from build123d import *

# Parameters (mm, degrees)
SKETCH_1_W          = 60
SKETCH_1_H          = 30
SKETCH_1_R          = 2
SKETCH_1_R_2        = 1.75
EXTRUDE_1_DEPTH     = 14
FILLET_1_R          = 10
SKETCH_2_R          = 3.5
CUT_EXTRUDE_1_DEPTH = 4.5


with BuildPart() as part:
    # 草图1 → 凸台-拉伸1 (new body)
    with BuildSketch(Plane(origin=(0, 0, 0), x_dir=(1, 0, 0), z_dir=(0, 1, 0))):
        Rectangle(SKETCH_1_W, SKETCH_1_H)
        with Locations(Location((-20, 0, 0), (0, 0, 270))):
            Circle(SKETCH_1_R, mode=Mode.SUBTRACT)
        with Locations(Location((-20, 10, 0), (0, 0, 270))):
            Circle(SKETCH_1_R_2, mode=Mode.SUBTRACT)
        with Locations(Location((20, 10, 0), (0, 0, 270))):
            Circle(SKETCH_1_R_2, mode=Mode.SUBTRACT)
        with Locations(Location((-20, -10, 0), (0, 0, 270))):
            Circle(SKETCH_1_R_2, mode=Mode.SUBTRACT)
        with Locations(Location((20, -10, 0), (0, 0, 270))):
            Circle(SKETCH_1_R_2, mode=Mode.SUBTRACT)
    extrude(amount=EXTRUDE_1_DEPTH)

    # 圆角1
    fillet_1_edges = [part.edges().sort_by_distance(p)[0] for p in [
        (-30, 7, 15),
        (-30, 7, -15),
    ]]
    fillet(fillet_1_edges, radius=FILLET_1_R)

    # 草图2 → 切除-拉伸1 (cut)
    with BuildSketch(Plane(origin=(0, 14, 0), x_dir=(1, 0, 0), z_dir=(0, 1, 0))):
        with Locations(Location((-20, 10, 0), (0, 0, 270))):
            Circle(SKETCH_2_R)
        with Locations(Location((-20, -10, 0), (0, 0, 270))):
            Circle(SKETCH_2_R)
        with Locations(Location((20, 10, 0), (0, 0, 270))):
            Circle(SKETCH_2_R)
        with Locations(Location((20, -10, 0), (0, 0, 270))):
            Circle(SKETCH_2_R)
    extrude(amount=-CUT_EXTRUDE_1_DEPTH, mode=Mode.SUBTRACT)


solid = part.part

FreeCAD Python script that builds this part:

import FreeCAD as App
import Part
import Sketcher
from FreeCAD import Vector


def edges_at(feature, points):
    """Names of the edges that pass closest to the given points."""
    edges = feature.Shape.Edges
    near = lambda p: min(range(len(edges)), key=lambda i: edges[i].distToShape(Part.Vertex(*p))[0])
    return sorted({f"Edge{near(p) + 1}" for p in points})

doc = App.newDocument("Part")
body = doc.addObject("PartDesign::Body", "Body")

# Sketch on XZ plane
sketch1 = doc.addObject("Sketcher::SketchObject", "Sketch")
body.addObject(sketch1)
sketch1.AttachmentSupport = (doc.XZ_Plane, [""])
sketch1.MapMode = "FlatFace"
sketch1.addGeometry([
    Part.LineSegment(Vector(-30, -15, 0), Vector(-30, 15, 0)),  # 0
    Part.LineSegment(Vector(-30, 15, 0), Vector(30, 15, 0)),  # 1
    Part.LineSegment(Vector(30, 15, 0), Vector(30, -15, 0)),  # 2
    Part.LineSegment(Vector(30, -15, 0), Vector(-30, -15, 0)),  # 3
    Part.Circle(Vector(-20, 10, 0), Vector(0, 0, 1), 1.8),  # 4
    Part.Circle(Vector(20, 10, 0), Vector(0, 0, 1), 1.8),  # 5
    Part.Circle(Vector(-20, 0, 0), Vector(0, 0, 1), 2),  # 6
    Part.Circle(Vector(-20, -10, 0), Vector(0, 0, 1), 1.8),  # 7
    Part.Circle(Vector(20, -10, 0), Vector(0, 0, 1), 1.8),  # 8
], False)
sketch1.addConstraint([
    Sketcher.Constraint("Coincident", 0, 2, 1, 1),
    Sketcher.Constraint("Coincident", 1, 2, 2, 1),
    Sketcher.Constraint("Coincident", 2, 2, 3, 1),
    Sketcher.Constraint("Coincident", 3, 2, 0, 1),
    Sketcher.Constraint("Vertical", 0),
    Sketcher.Constraint("Horizontal", 1),
    Sketcher.Constraint("Vertical", 2),
    Sketcher.Constraint("Horizontal", 3),
    Sketcher.Constraint("Equal", 4, 5),
    Sketcher.Constraint("Equal", 5, 7),
    Sketcher.Constraint("Equal", 7, 8),
    Sketcher.Constraint("Symmetric", 5, 3, 7, 3, -1, 1),
    Sketcher.Constraint("Symmetric", 4, 3, 8, 3, -1, 1),
    Sketcher.Constraint("Symmetric", 0, 2, 2, 2, -1, 1),
    Sketcher.Constraint("Symmetric", 4, 3, 5, 3, -2),
    Sketcher.Constraint("PointOnObject", 6, 3, -1),
    Sketcher.Constraint("Vertical", 4, 3, 6, 3),
    Sketcher.Constraint("Diameter", 6, 4.0),
    Sketcher.Constraint("Diameter", 4, 3.5),
    Sketcher.Constraint("DistanceX", 1, 1, 1, 2, 60.0),
    Sketcher.Constraint("DistanceY", 0, 1, 0, 2, 30.0),
    Sketcher.Constraint("DistanceX", 4, 3, -1, 1, 20.0),
    Sketcher.Constraint("DistanceY", -1, 1, 4, 3, 10.0),
])
pad1 = doc.addObject("PartDesign::Pad", "Pad")
body.addObject(pad1)
pad1.Profile = sketch1
pad1.Length = 14
pad1.Reversed = True
doc.recompute()

fillet = doc.addObject("PartDesign::Fillet", "Fillet")
body.addObject(fillet)
fillet.Base = (pad1, edges_at(pad1, [(-30, 7, 15), (-30, 7, -15)]))
fillet.Radius = 10

# Sketch on XZ plane
sketch2 = doc.addObject("Sketcher::SketchObject", "Sketch001")
body.addObject(sketch2)
sketch2.AttachmentSupport = (doc.XZ_Plane, [""])
sketch2.MapMode = "FlatFace"
sketch2.AttachmentOffset = App.Placement(Vector(0, 0, -14), App.Rotation())
sketch2.addGeometry([
    Part.Circle(Vector(-20, -10, 0), Vector(0, 0, 1), 3.5),
    Part.Circle(Vector(-20, 10, 0), Vector(0, 0, 1), 3.5),
    Part.Circle(Vector(20, -10, 0), Vector(0, 0, 1), 3.5),
    Part.Circle(Vector(20, 10, 0), Vector(0, 0, 1), 3.5),
], False)
sketch2.addConstraint([
    Sketcher.Constraint("Equal", 0, 1),
    Sketcher.Constraint("Equal", 1, 2),
    Sketcher.Constraint("Equal", 2, 3),
    Sketcher.Constraint("Symmetric", 1, 3, 2, 3, -1, 1),
    Sketcher.Constraint("Symmetric", 0, 3, 3, 3, -1, 1),
    Sketcher.Constraint("Symmetric", 0, 3, 2, 3, -2),
    Sketcher.Constraint("Diameter", 0, 7.0),
    Sketcher.Constraint("DistanceX", 0, 3, -1, 1, 20.0),
    Sketcher.Constraint("DistanceY", 0, 3, -1, 1, 10.0),
])
pocket1 = doc.addObject("PartDesign::Pocket", "Pocket")
body.addObject(pocket1)
pocket1.Profile = sketch2
pocket1.Length = 4.5
pocket1.Reversed = True

doc.recompute()
